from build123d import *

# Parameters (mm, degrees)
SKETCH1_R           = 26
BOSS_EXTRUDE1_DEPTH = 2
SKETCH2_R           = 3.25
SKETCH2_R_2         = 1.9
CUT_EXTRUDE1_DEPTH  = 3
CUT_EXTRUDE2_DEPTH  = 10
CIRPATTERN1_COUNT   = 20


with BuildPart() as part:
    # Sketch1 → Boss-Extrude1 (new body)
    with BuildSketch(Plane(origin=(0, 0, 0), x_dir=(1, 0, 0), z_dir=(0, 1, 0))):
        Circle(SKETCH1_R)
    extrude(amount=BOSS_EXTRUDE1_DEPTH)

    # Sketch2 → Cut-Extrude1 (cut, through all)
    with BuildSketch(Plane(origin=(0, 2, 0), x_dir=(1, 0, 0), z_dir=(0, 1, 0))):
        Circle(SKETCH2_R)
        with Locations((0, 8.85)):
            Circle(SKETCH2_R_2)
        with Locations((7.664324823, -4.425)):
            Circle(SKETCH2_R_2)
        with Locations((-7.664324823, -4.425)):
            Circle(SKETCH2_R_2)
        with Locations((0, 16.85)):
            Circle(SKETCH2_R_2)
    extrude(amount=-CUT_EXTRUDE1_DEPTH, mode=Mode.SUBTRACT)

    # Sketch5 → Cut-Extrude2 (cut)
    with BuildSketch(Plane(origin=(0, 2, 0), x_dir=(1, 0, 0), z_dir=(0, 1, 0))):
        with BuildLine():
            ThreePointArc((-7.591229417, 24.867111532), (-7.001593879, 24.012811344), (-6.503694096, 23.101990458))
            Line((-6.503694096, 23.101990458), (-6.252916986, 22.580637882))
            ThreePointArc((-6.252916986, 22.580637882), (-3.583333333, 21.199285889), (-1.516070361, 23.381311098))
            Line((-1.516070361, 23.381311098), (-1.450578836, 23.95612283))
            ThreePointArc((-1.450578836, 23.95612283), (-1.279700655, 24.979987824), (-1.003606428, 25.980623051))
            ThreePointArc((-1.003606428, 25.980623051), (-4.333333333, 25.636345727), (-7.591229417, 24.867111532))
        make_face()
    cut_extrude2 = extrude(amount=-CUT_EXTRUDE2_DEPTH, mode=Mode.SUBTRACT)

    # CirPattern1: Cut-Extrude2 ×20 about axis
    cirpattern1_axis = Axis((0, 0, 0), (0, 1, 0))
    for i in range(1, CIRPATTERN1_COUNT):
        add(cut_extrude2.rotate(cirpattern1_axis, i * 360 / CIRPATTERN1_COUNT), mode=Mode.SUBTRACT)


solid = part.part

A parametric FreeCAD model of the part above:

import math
import FreeCAD as App
import Part
import Sketcher
from FreeCAD import Vector
Q = App.Units.Quantity

doc = App.newDocument("Part")
params = doc.addObject("Spreadsheet::Sheet", "Params")
for row, (alias, value) in enumerate([
    ("sketch1_diameter", "52 mm"),
    ("pad1_length", "2 mm"),
    ("sketch2_diameter", "6.5 mm"),
    ("sketch2_diameter2", "3.8 mm"),
    ("sketch3_radius", "10 mm"),
    ("sketch3_radius2", "26 mm"),
    ("sketch3_radius3", "2.5 mm"),
    ("pocket2_length", "10 mm"),
], start=1):
    params.set(f"A{row}", alias)
    params.set(f"B{row}", "=" + value)
    params.setAlias(f"B{row}", alias)

body = doc.addObject("PartDesign::Body", "Body")

# Sketch on XZ plane
sketch1 = body.newObject("Sketcher::SketchObject", "Sketch")
sketch1.AttachmentSupport = (doc.getObject("XZ_Plane"), [""])
sketch1.MapMode = "FlatFace"
sketch1.addGeometry(Part.Circle(Vector(0, 0, 0), Vector(0, 0, 1), 26), False)
sketch1.addConstraint([
    Sketcher.Constraint("Coincident", 0, 3, -1, 1),
    Sketcher.Constraint("Diameter", 0, Q("52 mm")),
])
sketch1.setExpression("Constraints[1]", "Params.sketch1_diameter")
pad1 = body.newObject("PartDesign::Pad", "Pad")
pad1.Profile = sketch1
pad1.setExpression("Length", "Params.pad1_length")
pad1.Reversed = True

# Sketch on XZ plane
sketch2 = body.newObject("Sketcher::SketchObject", "Sketch001")
sketch2.AttachmentSupport = (doc.getObject("XZ_Plane"), [""])
sketch2.MapMode = "FlatFace"
sketch2.AttachmentOffset = App.Placement(Vector(0, 0, -2), App.Rotation())
sketch2.addGeometry([
    Part.Circle(Vector(0, 0, 0), Vector(0, 0, 1), 3.2),  # 0
    Part.Circle(Vector(0, -8.8, 0), Vector(0, 0, 1), 1.9),  # 1
    Part.Circle(Vector(7.7, 4.4, 0), Vector(0, 0, 1), 1.9),  # 2
    Part.Circle(Vector(-7.7, 4.4, 0), Vector(0, 0, 1), 1.9),  # 3
    Part.Circle(Vector(0, -16.9, 0), Vector(0, 0, 1), 1.9),  # 4
], False)
sketch2.addConstraint([
    Sketcher.Constraint("Coincident", 0, 3, -1, 1),
    Sketcher.Constraint("Equal", 1, 2),
    Sketcher.Constraint("Equal", 2, 3),
    Sketcher.Constraint("Equal", 3, 4),
    Sketcher.Constraint("Symmetric", 2, 3, 3, 3, -2),
    Sketcher.Constraint("PointOnObject", 1, 3, -2),
    Sketcher.Constraint("PointOnObject", 4, 3, -2),
    Sketcher.Constraint("Diameter", 0, Q("6.5 mm")),
    Sketcher.Constraint("Diameter", 1, Q("3.8 mm")),
    Sketcher.Constraint("DistanceY", 4, 3, 1, 3, Q("8 mm")),
    Sketcher.Constraint("DistanceY", 1, 3, -1, 1, Q("8.85 mm")),
    Sketcher.Constraint("DistanceY", -1, 1, 2, 3, Q("4.425 mm")),
    Sketcher.Constraint("DistanceX", 3, 3, 2, 3, Q("15.32865 mm")),
])
sketch2.setExpression("Constraints[7]", "Params.sketch2_diameter")
sketch2.setExpression("Constraints[8]", "Params.sketch2_diameter2")
pocket1 = body.newObject("PartDesign::Pocket", "Pocket")
pocket1.Profile = sketch2
pocket1.Type = "ThroughAll"
pocket1.Reversed = True

# Sketch on XZ plane
sketch3 = body.newObject("Sketcher::SketchObject", "Sketch002")
sketch3.AttachmentSupport = (doc.getObject("XZ_Plane"), [""])
sketch3.MapMode = "FlatFace"
sketch3.AttachmentOffset = App.Placement(Vector(0, 0, -2), App.Rotation())
sketch3.addGeometry([
    Part.ArcOfCircle(Part.Circle(Vector(-15.5, -18.8, 0), Vector(0, 0, 1), 10), math.radians(-37.59), math.radians(-25.69)),  # 0
    Part.LineSegment(Vector(-6.5, -23.1, 0), Vector(-6.3, -22.6, 0)),  # 1
    Part.ArcOfCircle(Part.Circle(Vector(-4, -23.7, 0), Vector(0, 0, 1), 2.5), math.radians(6), math.radians(154)),  # 2
    Part.LineSegment(Vector(-1.5, -23.4, 0), Vector(-1.5, -24, 0)),  # 3
    Part.ArcOfCircle(Part.Circle(Vector(8.5, -22.8, 0), Vector(0, 0, 1), 10), math.radians(-173.5), math.radians(-161.6)),  # 4
    Part.ArcOfCircle(Part.Circle(Vector(0, 0, 0), Vector(0, 0, 1), 26), math.radians(-106.98), math.radians(-92.21)),  # 5
], False)
sketch3.addConstraint([
    Sketcher.Constraint("Tangent", 0, 2, 1, 1),
    Sketcher.Constraint("Tangent", 1, 2, 2, 2),
    Sketcher.Constraint("Tangent", 2, 1, 3, 1),
    Sketcher.Constraint("Tangent", 3, 2, 4, 1),
    Sketcher.Constraint("Coincident", 4, 2, 5, 2),
    Sketcher.Constraint("Coincident", 5, 1, 0, 1),
    Sketcher.Constraint("Coincident", 5, 3, -1, 1),
    Sketcher.Constraint("Equal", 0, 4),
    Sketcher.Constraint("Equal", 1, 3),
    Sketcher.Constraint("Radius", 0, Q("10 mm")),
    Sketcher.Constraint("Radius", 5, Q("26 mm")),
    Sketcher.Constraint("Radius", 2, Q("2.5 mm")),
    Sketcher.Constraint("DistanceX", 2, 3, -1, 1, Q("4 mm")),
    Sketcher.Constraint("Angle", 3, Q("-83.5 deg")),
    Sketcher.Constraint("DistanceX", 0, 3, 4, 3, Q("24.000502 mm")),
    Sketcher.Constraint("DistanceY", 0, 2, 4, 3, Q("0.2779 mm")),
    Sketcher.Constraint("DistanceY", 4, 2, 3, 2, Q("2.0245 mm")),
])
sketch3.setExpression("Constraints[9]", "Params.sketch3_radius")
sketch3.setExpression("Constraints[10]", "Params.sketch3_radius2")
sketch3.setExpression("Constraints[11]", "Params.sketch3_radius3")
pocket2 = body.newObject("PartDesign::Pocket", "Pocket001")
pocket2.Profile = sketch3
pocket2.setExpression("Length", "Params.pocket2_length")
pocket2.Reversed = True
doc.recompute()

polarpattern = body.newObject("PartDesign::PolarPattern", "PolarPattern")
polarpattern.Originals = [pocket2]
polarpattern.Axis = (doc.getObject("Y_Axis"), [""])
polarpattern.Angle = 360
polarpattern.Occurrences = 20
body.Tip = polarpattern

doc.recompute()
